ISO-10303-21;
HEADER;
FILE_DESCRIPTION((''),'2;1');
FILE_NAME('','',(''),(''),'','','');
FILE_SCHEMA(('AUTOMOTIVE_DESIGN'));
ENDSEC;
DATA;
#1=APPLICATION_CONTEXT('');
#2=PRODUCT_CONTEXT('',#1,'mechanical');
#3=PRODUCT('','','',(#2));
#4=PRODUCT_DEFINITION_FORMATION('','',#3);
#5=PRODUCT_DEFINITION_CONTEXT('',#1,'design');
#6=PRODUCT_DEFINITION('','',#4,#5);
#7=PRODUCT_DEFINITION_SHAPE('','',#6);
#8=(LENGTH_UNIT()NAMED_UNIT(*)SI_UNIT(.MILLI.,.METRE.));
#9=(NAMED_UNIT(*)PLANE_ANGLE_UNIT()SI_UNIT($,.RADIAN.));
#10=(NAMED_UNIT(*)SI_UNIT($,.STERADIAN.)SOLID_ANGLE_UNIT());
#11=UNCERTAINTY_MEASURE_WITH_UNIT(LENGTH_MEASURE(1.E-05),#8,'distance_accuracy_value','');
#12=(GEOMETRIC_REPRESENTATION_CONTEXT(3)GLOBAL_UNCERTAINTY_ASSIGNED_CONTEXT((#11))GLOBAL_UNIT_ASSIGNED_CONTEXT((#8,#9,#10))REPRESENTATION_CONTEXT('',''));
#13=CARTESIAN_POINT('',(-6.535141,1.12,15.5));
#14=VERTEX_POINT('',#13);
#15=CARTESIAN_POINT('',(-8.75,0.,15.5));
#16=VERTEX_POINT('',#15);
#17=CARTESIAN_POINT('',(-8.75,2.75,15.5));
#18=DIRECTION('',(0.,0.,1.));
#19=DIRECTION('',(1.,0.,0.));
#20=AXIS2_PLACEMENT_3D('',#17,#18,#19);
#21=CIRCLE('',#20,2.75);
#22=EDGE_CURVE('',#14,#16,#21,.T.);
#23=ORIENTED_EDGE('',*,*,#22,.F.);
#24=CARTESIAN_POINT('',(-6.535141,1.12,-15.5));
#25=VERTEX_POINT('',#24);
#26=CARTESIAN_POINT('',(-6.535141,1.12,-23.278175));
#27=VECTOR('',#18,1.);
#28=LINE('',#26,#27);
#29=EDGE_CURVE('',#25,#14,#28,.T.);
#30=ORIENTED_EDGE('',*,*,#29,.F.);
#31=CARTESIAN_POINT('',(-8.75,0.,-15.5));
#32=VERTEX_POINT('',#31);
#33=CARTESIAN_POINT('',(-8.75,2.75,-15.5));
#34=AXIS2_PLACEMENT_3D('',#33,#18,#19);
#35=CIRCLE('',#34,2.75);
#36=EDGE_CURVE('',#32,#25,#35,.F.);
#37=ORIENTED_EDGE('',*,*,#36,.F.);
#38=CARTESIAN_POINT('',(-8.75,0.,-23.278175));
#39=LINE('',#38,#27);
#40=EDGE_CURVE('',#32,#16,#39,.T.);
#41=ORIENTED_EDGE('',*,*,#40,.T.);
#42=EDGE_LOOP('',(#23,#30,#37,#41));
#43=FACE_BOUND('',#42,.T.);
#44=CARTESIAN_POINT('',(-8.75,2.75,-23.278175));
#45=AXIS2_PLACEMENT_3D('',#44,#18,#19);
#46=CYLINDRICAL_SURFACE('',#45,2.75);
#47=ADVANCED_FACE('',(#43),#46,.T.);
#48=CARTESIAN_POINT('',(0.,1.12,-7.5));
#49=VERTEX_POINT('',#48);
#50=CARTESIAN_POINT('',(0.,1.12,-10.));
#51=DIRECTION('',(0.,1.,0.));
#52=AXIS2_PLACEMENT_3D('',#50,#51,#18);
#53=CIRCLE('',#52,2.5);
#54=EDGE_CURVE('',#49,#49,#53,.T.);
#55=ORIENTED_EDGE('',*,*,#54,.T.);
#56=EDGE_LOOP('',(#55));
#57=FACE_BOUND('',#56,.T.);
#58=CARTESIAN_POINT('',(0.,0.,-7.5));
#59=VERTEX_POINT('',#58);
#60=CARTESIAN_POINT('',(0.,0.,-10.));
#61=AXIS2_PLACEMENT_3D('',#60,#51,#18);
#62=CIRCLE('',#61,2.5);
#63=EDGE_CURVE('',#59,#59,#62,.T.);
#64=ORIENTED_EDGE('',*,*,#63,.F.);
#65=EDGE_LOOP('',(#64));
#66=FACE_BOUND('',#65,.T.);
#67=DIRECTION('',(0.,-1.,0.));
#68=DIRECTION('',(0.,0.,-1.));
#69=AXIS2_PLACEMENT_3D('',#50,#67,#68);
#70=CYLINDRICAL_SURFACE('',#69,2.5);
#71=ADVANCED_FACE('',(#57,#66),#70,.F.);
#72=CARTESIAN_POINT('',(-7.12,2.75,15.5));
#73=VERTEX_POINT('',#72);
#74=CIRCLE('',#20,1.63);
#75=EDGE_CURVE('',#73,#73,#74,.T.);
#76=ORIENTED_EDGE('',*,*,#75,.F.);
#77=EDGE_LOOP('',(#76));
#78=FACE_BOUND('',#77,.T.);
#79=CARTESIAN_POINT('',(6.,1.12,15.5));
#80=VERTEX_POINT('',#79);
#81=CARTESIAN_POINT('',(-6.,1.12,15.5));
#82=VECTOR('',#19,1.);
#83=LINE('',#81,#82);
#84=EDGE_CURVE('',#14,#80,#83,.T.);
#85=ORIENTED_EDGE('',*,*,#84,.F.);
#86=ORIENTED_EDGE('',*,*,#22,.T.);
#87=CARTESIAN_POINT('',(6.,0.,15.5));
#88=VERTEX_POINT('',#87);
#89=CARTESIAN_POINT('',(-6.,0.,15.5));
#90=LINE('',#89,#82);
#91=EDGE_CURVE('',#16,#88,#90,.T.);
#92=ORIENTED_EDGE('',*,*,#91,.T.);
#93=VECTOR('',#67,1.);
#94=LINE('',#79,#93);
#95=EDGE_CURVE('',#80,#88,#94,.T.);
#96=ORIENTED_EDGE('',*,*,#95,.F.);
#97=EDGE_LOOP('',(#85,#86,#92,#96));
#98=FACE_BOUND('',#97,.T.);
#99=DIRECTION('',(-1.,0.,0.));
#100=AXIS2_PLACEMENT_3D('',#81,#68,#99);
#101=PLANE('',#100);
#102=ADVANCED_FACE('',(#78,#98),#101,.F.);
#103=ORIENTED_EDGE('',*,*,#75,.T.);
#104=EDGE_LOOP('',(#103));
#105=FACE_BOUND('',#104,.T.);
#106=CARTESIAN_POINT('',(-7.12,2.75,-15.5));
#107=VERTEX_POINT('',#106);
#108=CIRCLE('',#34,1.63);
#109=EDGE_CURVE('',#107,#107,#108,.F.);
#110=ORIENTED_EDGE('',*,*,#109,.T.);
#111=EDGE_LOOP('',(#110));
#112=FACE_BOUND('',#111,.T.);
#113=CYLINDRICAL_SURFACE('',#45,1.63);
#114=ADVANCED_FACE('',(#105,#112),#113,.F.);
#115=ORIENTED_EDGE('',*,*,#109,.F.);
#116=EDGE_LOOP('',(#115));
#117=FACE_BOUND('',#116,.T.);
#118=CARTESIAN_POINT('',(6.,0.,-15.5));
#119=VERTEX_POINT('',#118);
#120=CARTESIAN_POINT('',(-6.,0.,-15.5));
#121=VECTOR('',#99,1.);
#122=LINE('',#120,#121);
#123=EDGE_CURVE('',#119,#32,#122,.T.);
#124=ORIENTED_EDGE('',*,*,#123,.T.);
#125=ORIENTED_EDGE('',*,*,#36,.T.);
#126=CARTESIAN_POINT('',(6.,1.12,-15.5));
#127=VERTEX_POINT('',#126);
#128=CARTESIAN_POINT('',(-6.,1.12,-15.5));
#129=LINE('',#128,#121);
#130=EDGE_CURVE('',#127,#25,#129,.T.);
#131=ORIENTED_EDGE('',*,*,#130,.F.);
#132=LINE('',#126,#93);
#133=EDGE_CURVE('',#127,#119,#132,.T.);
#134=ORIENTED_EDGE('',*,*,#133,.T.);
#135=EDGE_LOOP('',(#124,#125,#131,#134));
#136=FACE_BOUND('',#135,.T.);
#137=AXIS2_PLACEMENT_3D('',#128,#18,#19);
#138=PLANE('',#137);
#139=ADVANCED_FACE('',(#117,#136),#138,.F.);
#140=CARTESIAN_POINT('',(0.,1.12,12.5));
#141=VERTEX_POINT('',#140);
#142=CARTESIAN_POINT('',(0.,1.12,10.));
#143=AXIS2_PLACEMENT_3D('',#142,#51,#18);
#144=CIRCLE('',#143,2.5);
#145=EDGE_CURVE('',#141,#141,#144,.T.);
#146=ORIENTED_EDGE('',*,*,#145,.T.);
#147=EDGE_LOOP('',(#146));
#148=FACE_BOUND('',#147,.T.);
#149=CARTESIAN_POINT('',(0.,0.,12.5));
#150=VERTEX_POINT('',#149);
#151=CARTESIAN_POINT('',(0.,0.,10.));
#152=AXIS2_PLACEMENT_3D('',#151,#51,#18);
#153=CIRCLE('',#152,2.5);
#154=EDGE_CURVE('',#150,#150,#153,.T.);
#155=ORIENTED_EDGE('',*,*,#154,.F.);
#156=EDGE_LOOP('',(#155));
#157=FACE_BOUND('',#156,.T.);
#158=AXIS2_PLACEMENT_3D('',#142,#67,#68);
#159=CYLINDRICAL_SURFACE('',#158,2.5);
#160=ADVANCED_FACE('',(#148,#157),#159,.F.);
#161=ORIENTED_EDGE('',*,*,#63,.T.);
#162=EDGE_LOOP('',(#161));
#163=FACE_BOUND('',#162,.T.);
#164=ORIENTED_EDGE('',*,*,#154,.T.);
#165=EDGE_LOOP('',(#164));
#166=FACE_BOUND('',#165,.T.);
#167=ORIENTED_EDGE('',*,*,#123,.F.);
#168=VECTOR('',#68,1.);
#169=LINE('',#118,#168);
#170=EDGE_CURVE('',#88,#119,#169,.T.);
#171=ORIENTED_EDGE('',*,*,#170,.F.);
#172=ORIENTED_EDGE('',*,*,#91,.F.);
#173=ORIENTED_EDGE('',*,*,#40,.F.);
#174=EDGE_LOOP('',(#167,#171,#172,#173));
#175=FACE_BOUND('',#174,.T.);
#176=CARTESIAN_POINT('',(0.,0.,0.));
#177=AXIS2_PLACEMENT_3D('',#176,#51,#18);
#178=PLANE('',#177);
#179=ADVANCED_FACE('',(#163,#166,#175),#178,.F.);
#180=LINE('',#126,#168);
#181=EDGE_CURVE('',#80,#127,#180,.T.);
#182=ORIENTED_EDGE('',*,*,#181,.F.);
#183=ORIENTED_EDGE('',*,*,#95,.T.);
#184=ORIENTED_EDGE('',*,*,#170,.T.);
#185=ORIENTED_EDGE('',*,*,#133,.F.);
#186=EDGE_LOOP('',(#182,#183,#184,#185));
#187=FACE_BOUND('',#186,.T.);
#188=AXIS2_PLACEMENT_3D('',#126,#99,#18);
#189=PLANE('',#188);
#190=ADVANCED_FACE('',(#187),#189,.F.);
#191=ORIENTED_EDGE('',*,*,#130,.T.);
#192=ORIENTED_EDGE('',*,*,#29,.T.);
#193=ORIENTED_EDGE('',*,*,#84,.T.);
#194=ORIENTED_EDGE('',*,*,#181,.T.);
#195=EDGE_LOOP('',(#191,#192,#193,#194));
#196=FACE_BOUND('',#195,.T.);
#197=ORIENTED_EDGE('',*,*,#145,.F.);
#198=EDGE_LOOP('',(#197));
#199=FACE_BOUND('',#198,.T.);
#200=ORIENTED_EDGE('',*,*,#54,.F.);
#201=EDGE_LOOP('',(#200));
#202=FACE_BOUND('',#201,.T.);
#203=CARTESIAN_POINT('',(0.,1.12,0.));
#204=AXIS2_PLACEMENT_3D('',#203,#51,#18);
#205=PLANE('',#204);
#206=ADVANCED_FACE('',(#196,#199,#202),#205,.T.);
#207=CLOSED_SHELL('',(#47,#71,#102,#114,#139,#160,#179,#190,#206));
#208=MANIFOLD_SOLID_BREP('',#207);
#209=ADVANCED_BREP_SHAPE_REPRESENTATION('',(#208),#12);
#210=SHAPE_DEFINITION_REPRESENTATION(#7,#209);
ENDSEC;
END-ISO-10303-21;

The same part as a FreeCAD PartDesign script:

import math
import FreeCAD as App
import Part
import Sketcher

V = App.Vector

doc = App.newDocument("Part")
body = doc.addObject("PartDesign::Body", "Body")

# Sketch on XZ plane
sketch1 = body.newObject("Sketcher::SketchObject", "Sketch")
sketch1.AttachmentSupport = (doc.getObject("XZ_Plane"), [""])
sketch1.MapMode = "FlatFace"
sketch1.addGeometry([
    Part.LineSegment(V(-6, -15.5, 0), V(-6, 15.5, 0)),  # 0
    Part.LineSegment(V(-6, 15.5, 0), V(6, 15.5, 0)),  # 1
    Part.LineSegment(V(6, 15.5, 0), V(6, -15.5, 0)),  # 2
    Part.LineSegment(V(6, -15.5, 0), V(-6, -15.5, 0)),  # 3
    Part.Circle(V(0, 10, 0), V(0, 0, 1), 2.5),  # 4
    Part.Circle(V(0, -10, 0), V(0, 0, 1), 2.5),  # 5
], False)
sketch1.addConstraint([
    Sketcher.Constraint("Coincident", 0, 2, 1, 1),
    Sketcher.Constraint("Coincident", 1, 2, 2, 1),
    Sketcher.Constraint("Coincident", 2, 2, 3, 1),
    Sketcher.Constraint("Coincident", 3, 2, 0, 1),
    Sketcher.Constraint("Vertical", 0),
    Sketcher.Constraint("Horizontal", 1),
    Sketcher.Constraint("Vertical", 2),
    Sketcher.Constraint("Horizontal", 3),
    Sketcher.Constraint("Equal", 4, 5),
    Sketcher.Constraint("Symmetric", 4, 3, 5, 3, -1, 1),
    Sketcher.Constraint("Symmetric", 0, 2, 2, 2, -1, 1),
    Sketcher.Constraint("PointOnObject", 4, 3, -2),
    Sketcher.Constraint("Diameter", 4, 5.0),
    Sketcher.Constraint("DistanceX", 1, 1, 1, 2, 12.0),
    Sketcher.Constraint("DistanceY", 0, 1, 0, 2, 31.0),
    Sketcher.Constraint("DistanceY", -1, 1, 4, 3, 10.0),
])
pad1 = body.newObject("PartDesign::Pad", "Pad")
pad1.Profile = sketch1
pad1.Length = 1.12
pad1.Reversed = True

# Sketch on XY plane
sketch2 = body.newObject("Sketcher::SketchObject", "Sketch001")
sketch2.AttachmentSupport = (doc.getObject("XY_Plane"), [""])
sketch2.MapMode = "FlatFace"
sketch2.AttachmentOffset = App.Placement(V(0, 0, 15.5), App.Rotation())
sketch2.addGeometry([
    Part.LineSegment(V(-6, 1.1, 0), V(-6.5, 1.1, 0)),  # 0
    Part.ArcOfCircle(Part.Circle(V(-8.8, 2.8, 0), V(0, 0, 1), 2.8), math.radians(-36), math.radians(270)),  # 1
    Part.LineSegment(V(-8.8, 0, 0), V(-6, 0, 0)),  # 2
    Part.LineSegment(V(-6, 0, 0), V(-6, 1.1, 0)),  # 3
    Part.Circle(V(-8.8, 2.8, 0), V(0, 0, 1), 1.6),  # 4
], False)
sketch2.addConstraint([
    Sketcher.Constraint("Coincident", 0, 2, 1, 1),
    Sketcher.Constraint("Tangent", 1, 2, 2, 1),
    Sketcher.Constraint("Coincident", 2, 2, 3, 1),
    Sketcher.Constraint("Coincident", 3, 2, 0, 1),
    Sketcher.Constraint("Horizontal", 0),
    Sketcher.Constraint("Horizontal", 2),
    Sketcher.Constraint("Vertical", 3),
    Sketcher.Constraint("Coincident", 4, 3, 1, 3),
    Sketcher.Constraint("PointOnObject", 1, 2, -1),
    Sketcher.Constraint("Diameter", 4, 3.26),
    Sketcher.Constraint("Radius", 1, 2.75),
    Sketcher.Constraint("DistanceX", 2, 2, -1, 1, 6.0),
    Sketcher.Constraint("DistanceX", 2, 1, 2, 2, 2.75),
    Sketcher.Constraint("DistanceY", 3, 1, 3, 2, 1.12),
])
pad2 = body.newObject("PartDesign::Pad", "Pad001")
pad2.Profile = sketch2
pad2.Length = 31
pad2.Reversed = True

doc.recompute()
